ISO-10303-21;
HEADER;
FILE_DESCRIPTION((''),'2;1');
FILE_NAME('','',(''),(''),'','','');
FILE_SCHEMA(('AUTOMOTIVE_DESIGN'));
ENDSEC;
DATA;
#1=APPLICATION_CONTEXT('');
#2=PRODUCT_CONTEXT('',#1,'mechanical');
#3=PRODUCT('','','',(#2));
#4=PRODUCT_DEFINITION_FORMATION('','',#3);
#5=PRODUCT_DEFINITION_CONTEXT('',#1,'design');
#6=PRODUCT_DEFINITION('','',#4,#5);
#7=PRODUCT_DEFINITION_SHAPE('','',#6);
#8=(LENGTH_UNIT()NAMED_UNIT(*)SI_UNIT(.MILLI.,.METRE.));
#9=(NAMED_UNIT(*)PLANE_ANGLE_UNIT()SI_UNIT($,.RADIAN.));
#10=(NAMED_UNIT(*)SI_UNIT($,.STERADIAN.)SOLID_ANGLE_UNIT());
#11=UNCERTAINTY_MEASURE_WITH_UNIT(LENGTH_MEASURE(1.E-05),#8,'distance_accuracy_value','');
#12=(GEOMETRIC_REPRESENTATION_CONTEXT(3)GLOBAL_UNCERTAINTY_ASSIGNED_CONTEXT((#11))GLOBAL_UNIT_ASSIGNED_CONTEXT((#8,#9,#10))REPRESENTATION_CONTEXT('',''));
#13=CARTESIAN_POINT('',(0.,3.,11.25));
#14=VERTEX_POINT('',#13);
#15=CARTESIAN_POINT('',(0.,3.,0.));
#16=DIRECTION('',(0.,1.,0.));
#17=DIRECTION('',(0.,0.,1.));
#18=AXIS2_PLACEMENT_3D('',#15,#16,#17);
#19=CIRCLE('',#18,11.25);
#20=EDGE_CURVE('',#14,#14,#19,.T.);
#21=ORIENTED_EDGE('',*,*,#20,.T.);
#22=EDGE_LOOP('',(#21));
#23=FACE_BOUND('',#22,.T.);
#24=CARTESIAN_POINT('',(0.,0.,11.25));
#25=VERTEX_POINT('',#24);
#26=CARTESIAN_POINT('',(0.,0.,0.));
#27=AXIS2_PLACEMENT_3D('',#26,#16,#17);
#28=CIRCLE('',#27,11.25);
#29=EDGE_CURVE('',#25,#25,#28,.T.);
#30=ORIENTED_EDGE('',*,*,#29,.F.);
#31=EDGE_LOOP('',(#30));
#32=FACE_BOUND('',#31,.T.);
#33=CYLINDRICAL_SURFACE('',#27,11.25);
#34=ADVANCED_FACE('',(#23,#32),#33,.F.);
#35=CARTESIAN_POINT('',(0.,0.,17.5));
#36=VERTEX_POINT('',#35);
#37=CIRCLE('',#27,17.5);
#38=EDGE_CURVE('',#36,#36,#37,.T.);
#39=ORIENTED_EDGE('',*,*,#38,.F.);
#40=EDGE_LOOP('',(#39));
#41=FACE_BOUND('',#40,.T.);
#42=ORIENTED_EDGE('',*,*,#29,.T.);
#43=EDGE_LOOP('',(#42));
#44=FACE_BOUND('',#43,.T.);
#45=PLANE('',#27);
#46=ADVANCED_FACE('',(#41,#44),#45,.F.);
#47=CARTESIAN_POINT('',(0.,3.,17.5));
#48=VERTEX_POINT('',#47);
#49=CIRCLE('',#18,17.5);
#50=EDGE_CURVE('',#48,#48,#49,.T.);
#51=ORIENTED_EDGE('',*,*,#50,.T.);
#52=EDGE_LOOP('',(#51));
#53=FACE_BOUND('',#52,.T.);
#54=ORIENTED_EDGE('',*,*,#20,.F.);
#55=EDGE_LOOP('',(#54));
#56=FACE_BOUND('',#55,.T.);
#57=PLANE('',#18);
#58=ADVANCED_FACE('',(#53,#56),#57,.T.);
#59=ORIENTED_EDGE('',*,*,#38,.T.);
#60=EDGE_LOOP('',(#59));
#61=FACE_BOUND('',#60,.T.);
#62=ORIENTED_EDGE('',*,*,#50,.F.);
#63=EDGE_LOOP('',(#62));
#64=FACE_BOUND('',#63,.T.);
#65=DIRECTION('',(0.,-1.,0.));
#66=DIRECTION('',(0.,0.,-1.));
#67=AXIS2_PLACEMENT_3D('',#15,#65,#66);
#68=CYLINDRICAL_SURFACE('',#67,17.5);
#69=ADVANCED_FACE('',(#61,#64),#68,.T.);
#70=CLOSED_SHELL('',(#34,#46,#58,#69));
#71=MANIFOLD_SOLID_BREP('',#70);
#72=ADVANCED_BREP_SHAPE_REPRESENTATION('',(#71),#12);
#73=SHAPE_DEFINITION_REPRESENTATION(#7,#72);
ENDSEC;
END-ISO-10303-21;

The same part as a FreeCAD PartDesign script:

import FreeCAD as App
import Part
import Sketcher
from FreeCAD import Vector

doc = App.newDocument("Part")
body = doc.addObject("PartDesign::Body", "Body")

# Sketch on XZ plane
sketch1 = body.newObject("Sketcher::SketchObject", "Sketch")
sketch1.AttachmentSupport = (doc.getObject("XZ_Plane"), [""])
sketch1.MapMode = "FlatFace"
sketch1.addGeometry(Part.Circle(Vector(0, 0, 0), Vector(0, 0, 1), 18), False)
sketch1.addConstraint([
    Sketcher.Constraint("Coincident", 0, 3, -1, 1),
    Sketcher.Constraint("Diameter", 0, 35.0),
])
pad1 = body.newObject("PartDesign::Pad", "Pad")
pad1.Profile = sketch1
pad1.Length = 3
pad1.Reversed = True

# Sketch on XZ plane
sketch2 = body.newObject("Sketcher::SketchObject", "Sketch001")
sketch2.AttachmentSupport = (doc.getObject("XZ_Plane"), [""])
sketch2.MapMode = "FlatFace"
sketch2.AttachmentOffset = App.Placement(Vector(0, 0, -3), App.Rotation())
sketch2.addGeometry(Part.Circle(Vector(0, 0, 0), Vector(0, 0, 1), 11), False)
sketch2.addConstraint([
    Sketcher.Constraint("Coincident", 0, 3, -1, 1),
    Sketcher.Constraint("Diameter", 0, 22.5),
])
pocket1 = body.newObject("PartDesign::Pocket", "Pocket")
pocket1.Profile = sketch2
pocket1.Type = "ThroughAll"
pocket1.Reversed = True

doc.recompute()
